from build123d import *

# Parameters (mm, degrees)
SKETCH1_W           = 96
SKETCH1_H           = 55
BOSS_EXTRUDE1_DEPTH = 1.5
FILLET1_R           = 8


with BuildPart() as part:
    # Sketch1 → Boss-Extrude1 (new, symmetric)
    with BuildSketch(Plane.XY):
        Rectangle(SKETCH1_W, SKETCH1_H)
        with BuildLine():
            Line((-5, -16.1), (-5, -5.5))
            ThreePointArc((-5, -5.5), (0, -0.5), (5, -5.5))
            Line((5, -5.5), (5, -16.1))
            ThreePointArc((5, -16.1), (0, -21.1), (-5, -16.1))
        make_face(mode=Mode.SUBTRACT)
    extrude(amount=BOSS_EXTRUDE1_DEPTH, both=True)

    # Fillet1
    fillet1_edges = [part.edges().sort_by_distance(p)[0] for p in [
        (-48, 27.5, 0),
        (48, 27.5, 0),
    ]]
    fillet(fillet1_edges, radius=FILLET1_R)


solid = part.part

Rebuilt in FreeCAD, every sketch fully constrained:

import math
import FreeCAD as App
import Part
import Sketcher


def edges_at(feature, points):
    """Names of the edges that pass closest to the given points."""
    edges = feature.Shape.Edges
    near = lambda p: min(range(len(edges)), key=lambda i: edges[i].distToShape(Part.Vertex(*p))[0])
    return sorted({f"Edge{near(p) + 1}" for p in points})

doc = App.newDocument("Part")
body = doc.addObject("PartDesign::Body", "Body")

# Sketch on XY plane
sketch1 = doc.addObject("Sketcher::SketchObject", "Sketch")
body.addObject(sketch1)
sketch1.AttachmentSupport = (doc.XY_Plane, [""])
sketch1.MapMode = "FlatFace"
sketch1.addGeometry([
    Part.LineSegment(App.Vector(-48, 27.5, 0), App.Vector(-48, -27.5, 0)),  # 0
    Part.LineSegment(App.Vector(-48, -27.5, 0), App.Vector(48, -27.5, 0)),  # 1
    Part.LineSegment(App.Vector(48, -27.5, 0), App.Vector(48, 27.5, 0)),  # 2
    Part.LineSegment(App.Vector(48, 27.5, 0), App.Vector(-48, 27.5, 0)),  # 3
    Part.ArcOfCircle(Part.Circle(App.Vector(0, -16.1, 0), App.Vector(0, 0, 1), 5), math.radians(180), math.radians(360)),  # 4
    Part.LineSegment(App.Vector(-5, -16.1, 0), App.Vector(-5, -5.5, 0)),  # 5
    Part.ArcOfCircle(Part.Circle(App.Vector(0, -5.5, 0), App.Vector(0, 0, 1), 5), math.radians(0), math.radians(180)),  # 6
    Part.LineSegment(App.Vector(5, -5.5, 0), App.Vector(5, -16.1, 0)),  # 7
], False)
sketch1.addConstraint([
    Sketcher.Constraint("Coincident", 0, 2, 1, 1),
    Sketcher.Constraint("Coincident", 1, 2, 2, 1),
    Sketcher.Constraint("Coincident", 2, 2, 3, 1),
    Sketcher.Constraint("Coincident", 3, 2, 0, 1),
    Sketcher.Constraint("Tangent", 4, 1, 5, 1),
    Sketcher.Constraint("Tangent", 5, 2, 6, 2),
    Sketcher.Constraint("Tangent", 6, 1, 7, 1),
    Sketcher.Constraint("Tangent", 7, 2, 4, 2),
    Sketcher.Constraint("Vertical", 0),
    Sketcher.Constraint("Horizontal", 1),
    Sketcher.Constraint("Vertical", 2),
    Sketcher.Constraint("Horizontal", 3),
    Sketcher.Constraint("Vertical", 5),
    Sketcher.Constraint("Vertical", 7),
    Sketcher.Constraint("Symmetric", 0, 2, 2, 2, -1, 1),
    Sketcher.Constraint("PointOnObject", 4, 3, -2),
    Sketcher.Constraint("Radius", 4, 5.0),
    Sketcher.Constraint("DistanceX", 1, 1, 1, 2, 96.0),
    Sketcher.Constraint("DistanceY", 0, 2, 0, 1, 55.0),
    Sketcher.Constraint("DistanceY", 5, 1, 5, 2, 10.6),
    Sketcher.Constraint("DistanceY", 0, 2, 6, 3, 22.0),
])
pad1 = doc.addObject("PartDesign::Pad", "Pad")
body.addObject(pad1)
pad1.Profile = sketch1
pad1.Length = 3
pad1.Midplane = True
doc.recompute()

fillet = doc.addObject("PartDesign::Fillet", "Fillet")
body.addObject(fillet)
fillet.Base = (pad1, edges_at(pad1, [(-48, 27.5, 0), (48, 27.5, 0)]))
fillet.Radius = 8

doc.recompute()
